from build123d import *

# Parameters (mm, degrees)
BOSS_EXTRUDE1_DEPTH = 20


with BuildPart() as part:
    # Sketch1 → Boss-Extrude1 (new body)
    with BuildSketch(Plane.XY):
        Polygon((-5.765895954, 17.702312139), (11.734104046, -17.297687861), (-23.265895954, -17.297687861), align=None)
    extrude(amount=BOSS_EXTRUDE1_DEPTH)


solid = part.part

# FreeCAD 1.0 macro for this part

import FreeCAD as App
import Part
import Sketcher


def add_polygon(sketch, points):
    """Adds a closed chain of lines whose ends are joined by coincident constraints."""
    first, n = sketch.GeometryCount, len(points)
    for a, b in zip(points, points[1:] + points[:1]):
        sketch.addGeometry(Part.LineSegment(App.Vector(*a, 0), App.Vector(*b, 0)), False)
    for i in range(n):
        sketch.addConstraint(Sketcher.Constraint("Coincident", first + i, 2, first + (i + 1) % n, 1))

doc = App.newDocument("Part")
params = doc.addObject("Spreadsheet::Sheet", "Params")
for row, (alias, value) in enumerate([
    ("sketch1_width", "35 mm"),
    ("pad1_length", "20 mm"),
], start=1):
    params.set(f"A{row}", alias)
    params.set(f"B{row}", "=" + value)
    params.setAlias(f"B{row}", alias)

body = doc.addObject("PartDesign::Body", "Body")

# Sketch on XY plane
sketch1 = body.newObject("Sketcher::SketchObject", "Sketch")
sketch1.AttachmentSupport = (doc.getObject("XY_Plane"), [""])
sketch1.MapMode = "FlatFace"
add_polygon(sketch1, [(12, -17), (-6, 18), (-23, -17)])  # lines 0-2
sketch1.addConstraint([
    Sketcher.Constraint("Horizontal", 2),
    Sketcher.Constraint("Equal", 0, 1),
    Sketcher.Constraint("DistanceX", 2, 1, 2, 2, 35.0),
    Sketcher.Constraint("DistanceY", 1, 2, 0, 2, 35.0),
    Sketcher.Constraint("DistanceX", 0, 2, -1, 1, 5.765896),
    Sketcher.Constraint("DistanceY", -1, 1, 0, 2, 17.702312),
])
sketch1.setExpression("Constraints[5]", "Params.sketch1_width")
pad1 = body.newObject("PartDesign::Pad", "Pad")
pad1.Profile = sketch1
pad1.setExpression("Length", "Params.pad1_length")

doc.recompute()
